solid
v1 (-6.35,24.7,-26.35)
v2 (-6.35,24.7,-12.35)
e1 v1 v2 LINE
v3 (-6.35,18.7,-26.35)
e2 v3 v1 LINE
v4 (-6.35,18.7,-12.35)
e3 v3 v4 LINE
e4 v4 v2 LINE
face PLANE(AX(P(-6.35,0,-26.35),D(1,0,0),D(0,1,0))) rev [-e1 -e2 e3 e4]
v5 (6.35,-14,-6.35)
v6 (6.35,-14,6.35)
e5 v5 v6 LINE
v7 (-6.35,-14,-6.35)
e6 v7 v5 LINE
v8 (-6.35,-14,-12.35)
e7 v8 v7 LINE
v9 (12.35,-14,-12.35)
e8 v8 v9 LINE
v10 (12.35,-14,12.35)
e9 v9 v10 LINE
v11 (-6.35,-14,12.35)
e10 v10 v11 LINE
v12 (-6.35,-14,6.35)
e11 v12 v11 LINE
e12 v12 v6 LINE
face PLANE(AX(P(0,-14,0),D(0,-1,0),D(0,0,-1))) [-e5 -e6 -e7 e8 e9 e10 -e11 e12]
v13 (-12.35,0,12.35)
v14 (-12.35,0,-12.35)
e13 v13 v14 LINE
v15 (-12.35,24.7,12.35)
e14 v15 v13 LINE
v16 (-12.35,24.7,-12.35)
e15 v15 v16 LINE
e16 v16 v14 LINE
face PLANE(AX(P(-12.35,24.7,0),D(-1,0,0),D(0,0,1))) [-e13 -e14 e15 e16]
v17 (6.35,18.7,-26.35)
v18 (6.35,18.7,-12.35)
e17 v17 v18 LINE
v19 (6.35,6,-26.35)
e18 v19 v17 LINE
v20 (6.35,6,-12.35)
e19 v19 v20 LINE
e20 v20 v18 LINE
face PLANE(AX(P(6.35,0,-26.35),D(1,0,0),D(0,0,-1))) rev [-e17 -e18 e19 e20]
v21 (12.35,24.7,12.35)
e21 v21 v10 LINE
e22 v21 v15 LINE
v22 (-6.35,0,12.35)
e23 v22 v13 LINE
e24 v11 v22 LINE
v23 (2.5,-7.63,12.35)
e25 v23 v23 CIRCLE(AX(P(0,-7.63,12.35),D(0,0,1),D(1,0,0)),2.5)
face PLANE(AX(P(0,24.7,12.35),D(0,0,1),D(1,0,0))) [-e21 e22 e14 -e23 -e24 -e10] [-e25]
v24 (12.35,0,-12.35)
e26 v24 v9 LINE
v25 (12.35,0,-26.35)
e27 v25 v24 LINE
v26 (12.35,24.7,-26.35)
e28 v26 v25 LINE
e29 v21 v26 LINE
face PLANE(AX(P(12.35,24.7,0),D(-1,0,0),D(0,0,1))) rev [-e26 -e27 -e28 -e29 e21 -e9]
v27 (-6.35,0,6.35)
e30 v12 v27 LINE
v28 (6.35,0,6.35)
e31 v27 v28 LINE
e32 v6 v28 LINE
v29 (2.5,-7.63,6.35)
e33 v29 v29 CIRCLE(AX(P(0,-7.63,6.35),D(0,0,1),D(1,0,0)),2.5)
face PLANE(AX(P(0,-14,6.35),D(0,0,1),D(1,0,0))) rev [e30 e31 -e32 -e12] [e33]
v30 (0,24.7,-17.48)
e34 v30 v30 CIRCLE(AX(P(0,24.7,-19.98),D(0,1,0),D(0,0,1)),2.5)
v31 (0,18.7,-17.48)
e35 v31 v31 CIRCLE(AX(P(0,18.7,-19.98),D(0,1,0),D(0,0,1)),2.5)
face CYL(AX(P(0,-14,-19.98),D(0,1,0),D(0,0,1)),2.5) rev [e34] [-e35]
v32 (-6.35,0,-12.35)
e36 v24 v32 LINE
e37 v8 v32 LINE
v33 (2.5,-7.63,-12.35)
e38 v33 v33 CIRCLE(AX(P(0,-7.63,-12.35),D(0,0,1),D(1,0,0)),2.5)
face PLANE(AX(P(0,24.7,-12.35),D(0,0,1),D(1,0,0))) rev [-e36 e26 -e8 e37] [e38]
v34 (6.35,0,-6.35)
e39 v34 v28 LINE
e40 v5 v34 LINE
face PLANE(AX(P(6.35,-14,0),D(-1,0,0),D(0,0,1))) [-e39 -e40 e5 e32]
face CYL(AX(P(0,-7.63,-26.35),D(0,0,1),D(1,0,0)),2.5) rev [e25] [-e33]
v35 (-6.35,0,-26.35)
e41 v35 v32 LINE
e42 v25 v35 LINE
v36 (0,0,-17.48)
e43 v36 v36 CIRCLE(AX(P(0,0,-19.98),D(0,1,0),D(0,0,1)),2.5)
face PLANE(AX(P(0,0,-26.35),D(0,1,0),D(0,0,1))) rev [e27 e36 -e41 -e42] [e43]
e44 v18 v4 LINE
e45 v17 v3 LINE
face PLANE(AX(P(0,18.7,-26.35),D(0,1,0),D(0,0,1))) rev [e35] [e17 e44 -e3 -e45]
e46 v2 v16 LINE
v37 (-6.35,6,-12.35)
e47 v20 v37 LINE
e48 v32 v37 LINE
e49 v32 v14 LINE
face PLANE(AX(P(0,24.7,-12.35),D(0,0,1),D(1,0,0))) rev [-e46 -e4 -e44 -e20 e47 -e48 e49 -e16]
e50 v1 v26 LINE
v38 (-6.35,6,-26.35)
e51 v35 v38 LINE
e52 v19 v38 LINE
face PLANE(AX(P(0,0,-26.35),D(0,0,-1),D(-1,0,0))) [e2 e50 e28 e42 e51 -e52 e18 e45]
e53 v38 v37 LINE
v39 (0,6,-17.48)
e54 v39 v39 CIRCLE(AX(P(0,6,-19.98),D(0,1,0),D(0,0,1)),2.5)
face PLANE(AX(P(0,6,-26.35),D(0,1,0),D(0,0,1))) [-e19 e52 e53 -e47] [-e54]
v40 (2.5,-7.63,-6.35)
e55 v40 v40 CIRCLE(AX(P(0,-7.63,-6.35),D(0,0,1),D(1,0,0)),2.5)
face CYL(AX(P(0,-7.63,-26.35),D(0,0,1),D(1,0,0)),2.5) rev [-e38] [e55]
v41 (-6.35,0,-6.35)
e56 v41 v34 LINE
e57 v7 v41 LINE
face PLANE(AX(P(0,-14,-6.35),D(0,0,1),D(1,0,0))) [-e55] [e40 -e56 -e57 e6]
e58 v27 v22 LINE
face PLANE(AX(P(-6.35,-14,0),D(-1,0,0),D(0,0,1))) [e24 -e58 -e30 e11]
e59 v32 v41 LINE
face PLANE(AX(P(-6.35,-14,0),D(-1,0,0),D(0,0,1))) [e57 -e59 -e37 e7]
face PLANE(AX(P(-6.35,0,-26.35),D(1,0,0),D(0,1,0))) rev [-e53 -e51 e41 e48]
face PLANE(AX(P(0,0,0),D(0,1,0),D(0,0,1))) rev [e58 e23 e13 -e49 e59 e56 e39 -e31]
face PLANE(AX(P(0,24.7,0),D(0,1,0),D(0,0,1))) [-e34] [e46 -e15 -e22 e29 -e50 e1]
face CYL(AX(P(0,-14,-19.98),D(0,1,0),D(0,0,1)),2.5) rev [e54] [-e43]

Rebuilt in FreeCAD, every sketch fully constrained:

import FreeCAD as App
import Part
import Sketcher
Q = App.Units.Quantity


def add_polygon(sketch, points):
    """Adds a closed chain of lines whose ends are joined by coincident constraints."""
    first, n = sketch.GeometryCount, len(points)
    for a, b in zip(points, points[1:] + points[:1]):
        sketch.addGeometry(Part.LineSegment(App.Vector(*a, 0), App.Vector(*b, 0)), False)
    for i in range(n):
        sketch.addConstraint(Sketcher.Constraint("Coincident", first + i, 2, first + (i + 1) % n, 1))

doc = App.newDocument("Part")
body = doc.addObject("PartDesign::Body", "Body")

# Sketch on XZ plane
sketch1 = body.newObject("Sketcher::SketchObject", "Sketch")
sketch1.AttachmentSupport = (doc.getObject("XZ_Plane"), [""])
sketch1.MapMode = "FlatFace"
add_polygon(sketch1, [(-12.35, -12.35), (-12.35, 12.35), (12.35, 12.35), (12.35, -12.35)])  # lines 0-3
sketch1.addConstraint(Sketcher.Constraint("Vertical", 0))
sketch1.addConstraint(Sketcher.Constraint("Horizontal", 1))
sketch1.addConstraint(Sketcher.Constraint("Vertical", 2))
sketch1.addConstraint(Sketcher.Constraint("Horizontal", 3))
sketch1.addConstraint(Sketcher.Constraint("Symmetric", 0, 2, 2, 2, -1, 1))
sketch1.addConstraint(Sketcher.Constraint("Equal", 3, 0))
sketch1.addConstraint(Sketcher.Constraint("DistanceX", 1, 1, 1, 2, Q("24.7 mm")))
pad1 = body.newObject("PartDesign::Pad", "Pad")
pad1.Profile = sketch1
pad1.Length = 24.7
pad1.Reversed = True

# Sketch on XZ plane
sketch2 = body.newObject("Sketcher::SketchObject", "Sketch001")
sketch2.AttachmentSupport = (doc.getObject("XZ_Plane"), [""])
sketch2.MapMode = "FlatFace"
add_polygon(sketch2, [(-6.35, 12.35), (-6.35, 6.35), (6.35, 6.35), (6.35, -6.35), (-6.35, -6.35), (-6.35, -12.35), (12.35, -12.35), (12.35, 12.35)])  # lines 0-7
sketch2.addConstraint(Sketcher.Constraint("Vertical", 0))
sketch2.addConstraint(Sketcher.Constraint("Horizontal", 1))
sketch2.addConstraint(Sketcher.Constraint("Vertical", 2))
sketch2.addConstraint(Sketcher.Constraint("Horizontal", 3))
sketch2.addConstraint(Sketcher.Constraint("Vertical", 4))
sketch2.addConstraint(Sketcher.Constraint("Horizontal", 5))
sketch2.addConstraint(Sketcher.Constraint("Vertical", 6))
sketch2.addConstraint(Sketcher.Constraint("Horizontal", 7))
sketch2.addConstraint(Sketcher.Constraint("Symmetric", 0, 2, 2, 2, -1, 1))
sketch2.addConstraint(Sketcher.Constraint("Symmetric", 4, 2, 7, 2, -1))
sketch2.addConstraint(Sketcher.Constraint("Equal", 3, 2))
sketch2.addConstraint(Sketcher.Constraint("DistanceY", 0, 2, 0, 1, Q("6 mm")))
sketch2.addConstraint(Sketcher.Constraint("DistanceX", 1, 1, 1, 2, Q("12.7 mm")))
sketch2.addConstraint(Sketcher.Constraint("DistanceX", 5, 1, 5, 2, Q("18.7 mm")))
pad2 = body.newObject("PartDesign::Pad", "Pad001")
pad2.Profile = sketch2
pad2.Length = 14

# Sketch on XY plane
sketch3 = body.newObject("Sketcher::SketchObject", "Sketch002")
sketch3.AttachmentSupport = (doc.getObject("XY_Plane"), [""])
sketch3.MapMode = "FlatFace"
sketch3.AttachmentOffset = App.Placement(App.Vector(0, 0, -12.35), App.Rotation())
add_polygon(sketch3, [(-6.35, 6), (6.35, 6), (6.35, 18.7), (-6.35, 18.7), (-6.35, 24.7), (12.35, 24.7), (12.35, 0), (-6.35, 0)])  # lines 0-7
sketch3.addConstraint(Sketcher.Constraint("Horizontal", 0))
sketch3.addConstraint(Sketcher.Constraint("Vertical", 1))
sketch3.addConstraint(Sketcher.Constraint("Horizontal", 2))
sketch3.addConstraint(Sketcher.Constraint("Vertical", 3))
sketch3.addConstraint(Sketcher.Constraint("Horizontal", 4))
sketch3.addConstraint(Sketcher.Constraint("Vertical", 5))
sketch3.addConstraint(Sketcher.Constraint("Horizontal", 6))
sketch3.addConstraint(Sketcher.Constraint("Vertical", 7))
sketch3.addConstraint(Sketcher.Constraint("PointOnObject", 5, 2, -1))
sketch3.addConstraint(Sketcher.Constraint("Vertical", 3, 2, 6, 2))
sketch3.addConstraint(Sketcher.Constraint("Equal", 2, 1))
sketch3.addConstraint(Sketcher.Constraint("Equal", 3, 7))
sketch3.addConstraint(Sketcher.Constraint("DistanceY", 3, 1, 3, 2, Q("6 mm")))
sketch3.addConstraint(Sketcher.Constraint("DistanceX", 0, 1, 0, 2, Q("12.7 mm")))
sketch3.addConstraint(Sketcher.Constraint("DistanceX", 4, 1, 4, 2, Q("18.7 mm")))
sketch3.addConstraint(Sketcher.Constraint("DistanceX", -1, 1, 0, 2, Q("6.35 mm")))
pad3 = body.newObject("PartDesign::Pad", "Pad002")
pad3.Profile = sketch3
pad3.Length = 14
pad3.Reversed = True

# Sketch on XZ plane
sketch4 = body.newObject("Sketcher::SketchObject", "Sketch003")
sketch4.AttachmentSupport = (doc.getObject("XZ_Plane"), [""])
sketch4.MapMode = "FlatFace"
sketch4.AttachmentOffset = App.Placement(App.Vector(0, 0, -24.7), App.Rotation())
sketch4.addGeometry(Part.Circle(App.Vector(0, -19.98, 0), App.Vector(0, 0, 1), 2.5), False)
sketch4.addConstraint(Sketcher.Constraint("PointOnObject", 0, 3, -2))
sketch4.addConstraint(Sketcher.Constraint("Diameter", 0, Q("5 mm")))
sketch4.addConstraint(Sketcher.Constraint("DistanceY", 0, 3, -1, 1, Q("19.98 mm")))
pocket1 = body.newObject("PartDesign::Pocket", "Pocket")
pocket1.Profile = sketch4
pocket1.Type = "ThroughAll"
pocket1.Reversed = True

# Sketch on XY plane
sketch5 = body.newObject("Sketcher::SketchObject", "Sketch004")
sketch5.AttachmentSupport = (doc.getObject("XY_Plane"), [""])
sketch5.MapMode = "FlatFace"
sketch5.AttachmentOffset = App.Placement(App.Vector(0, 0, 12.35), App.Rotation())
sketch5.addGeometry(Part.Circle(App.Vector(0, -7.63, 0), App.Vector(0, 0, 1), 2.5), False)
sketch5.addConstraint(Sketcher.Constraint("PointOnObject", 0, 3, -2))
sketch5.addConstraint(Sketcher.Constraint("Diameter", 0, Q("5 mm")))
sketch5.addConstraint(Sketcher.Constraint("DistanceY", 0, 3, -1, 1, Q("7.63 mm")))
pocket2 = body.newObject("PartDesign::Pocket", "Pocket001")
pocket2.Profile = sketch5
pocket2.Type = "ThroughAll"

doc.recompute()
